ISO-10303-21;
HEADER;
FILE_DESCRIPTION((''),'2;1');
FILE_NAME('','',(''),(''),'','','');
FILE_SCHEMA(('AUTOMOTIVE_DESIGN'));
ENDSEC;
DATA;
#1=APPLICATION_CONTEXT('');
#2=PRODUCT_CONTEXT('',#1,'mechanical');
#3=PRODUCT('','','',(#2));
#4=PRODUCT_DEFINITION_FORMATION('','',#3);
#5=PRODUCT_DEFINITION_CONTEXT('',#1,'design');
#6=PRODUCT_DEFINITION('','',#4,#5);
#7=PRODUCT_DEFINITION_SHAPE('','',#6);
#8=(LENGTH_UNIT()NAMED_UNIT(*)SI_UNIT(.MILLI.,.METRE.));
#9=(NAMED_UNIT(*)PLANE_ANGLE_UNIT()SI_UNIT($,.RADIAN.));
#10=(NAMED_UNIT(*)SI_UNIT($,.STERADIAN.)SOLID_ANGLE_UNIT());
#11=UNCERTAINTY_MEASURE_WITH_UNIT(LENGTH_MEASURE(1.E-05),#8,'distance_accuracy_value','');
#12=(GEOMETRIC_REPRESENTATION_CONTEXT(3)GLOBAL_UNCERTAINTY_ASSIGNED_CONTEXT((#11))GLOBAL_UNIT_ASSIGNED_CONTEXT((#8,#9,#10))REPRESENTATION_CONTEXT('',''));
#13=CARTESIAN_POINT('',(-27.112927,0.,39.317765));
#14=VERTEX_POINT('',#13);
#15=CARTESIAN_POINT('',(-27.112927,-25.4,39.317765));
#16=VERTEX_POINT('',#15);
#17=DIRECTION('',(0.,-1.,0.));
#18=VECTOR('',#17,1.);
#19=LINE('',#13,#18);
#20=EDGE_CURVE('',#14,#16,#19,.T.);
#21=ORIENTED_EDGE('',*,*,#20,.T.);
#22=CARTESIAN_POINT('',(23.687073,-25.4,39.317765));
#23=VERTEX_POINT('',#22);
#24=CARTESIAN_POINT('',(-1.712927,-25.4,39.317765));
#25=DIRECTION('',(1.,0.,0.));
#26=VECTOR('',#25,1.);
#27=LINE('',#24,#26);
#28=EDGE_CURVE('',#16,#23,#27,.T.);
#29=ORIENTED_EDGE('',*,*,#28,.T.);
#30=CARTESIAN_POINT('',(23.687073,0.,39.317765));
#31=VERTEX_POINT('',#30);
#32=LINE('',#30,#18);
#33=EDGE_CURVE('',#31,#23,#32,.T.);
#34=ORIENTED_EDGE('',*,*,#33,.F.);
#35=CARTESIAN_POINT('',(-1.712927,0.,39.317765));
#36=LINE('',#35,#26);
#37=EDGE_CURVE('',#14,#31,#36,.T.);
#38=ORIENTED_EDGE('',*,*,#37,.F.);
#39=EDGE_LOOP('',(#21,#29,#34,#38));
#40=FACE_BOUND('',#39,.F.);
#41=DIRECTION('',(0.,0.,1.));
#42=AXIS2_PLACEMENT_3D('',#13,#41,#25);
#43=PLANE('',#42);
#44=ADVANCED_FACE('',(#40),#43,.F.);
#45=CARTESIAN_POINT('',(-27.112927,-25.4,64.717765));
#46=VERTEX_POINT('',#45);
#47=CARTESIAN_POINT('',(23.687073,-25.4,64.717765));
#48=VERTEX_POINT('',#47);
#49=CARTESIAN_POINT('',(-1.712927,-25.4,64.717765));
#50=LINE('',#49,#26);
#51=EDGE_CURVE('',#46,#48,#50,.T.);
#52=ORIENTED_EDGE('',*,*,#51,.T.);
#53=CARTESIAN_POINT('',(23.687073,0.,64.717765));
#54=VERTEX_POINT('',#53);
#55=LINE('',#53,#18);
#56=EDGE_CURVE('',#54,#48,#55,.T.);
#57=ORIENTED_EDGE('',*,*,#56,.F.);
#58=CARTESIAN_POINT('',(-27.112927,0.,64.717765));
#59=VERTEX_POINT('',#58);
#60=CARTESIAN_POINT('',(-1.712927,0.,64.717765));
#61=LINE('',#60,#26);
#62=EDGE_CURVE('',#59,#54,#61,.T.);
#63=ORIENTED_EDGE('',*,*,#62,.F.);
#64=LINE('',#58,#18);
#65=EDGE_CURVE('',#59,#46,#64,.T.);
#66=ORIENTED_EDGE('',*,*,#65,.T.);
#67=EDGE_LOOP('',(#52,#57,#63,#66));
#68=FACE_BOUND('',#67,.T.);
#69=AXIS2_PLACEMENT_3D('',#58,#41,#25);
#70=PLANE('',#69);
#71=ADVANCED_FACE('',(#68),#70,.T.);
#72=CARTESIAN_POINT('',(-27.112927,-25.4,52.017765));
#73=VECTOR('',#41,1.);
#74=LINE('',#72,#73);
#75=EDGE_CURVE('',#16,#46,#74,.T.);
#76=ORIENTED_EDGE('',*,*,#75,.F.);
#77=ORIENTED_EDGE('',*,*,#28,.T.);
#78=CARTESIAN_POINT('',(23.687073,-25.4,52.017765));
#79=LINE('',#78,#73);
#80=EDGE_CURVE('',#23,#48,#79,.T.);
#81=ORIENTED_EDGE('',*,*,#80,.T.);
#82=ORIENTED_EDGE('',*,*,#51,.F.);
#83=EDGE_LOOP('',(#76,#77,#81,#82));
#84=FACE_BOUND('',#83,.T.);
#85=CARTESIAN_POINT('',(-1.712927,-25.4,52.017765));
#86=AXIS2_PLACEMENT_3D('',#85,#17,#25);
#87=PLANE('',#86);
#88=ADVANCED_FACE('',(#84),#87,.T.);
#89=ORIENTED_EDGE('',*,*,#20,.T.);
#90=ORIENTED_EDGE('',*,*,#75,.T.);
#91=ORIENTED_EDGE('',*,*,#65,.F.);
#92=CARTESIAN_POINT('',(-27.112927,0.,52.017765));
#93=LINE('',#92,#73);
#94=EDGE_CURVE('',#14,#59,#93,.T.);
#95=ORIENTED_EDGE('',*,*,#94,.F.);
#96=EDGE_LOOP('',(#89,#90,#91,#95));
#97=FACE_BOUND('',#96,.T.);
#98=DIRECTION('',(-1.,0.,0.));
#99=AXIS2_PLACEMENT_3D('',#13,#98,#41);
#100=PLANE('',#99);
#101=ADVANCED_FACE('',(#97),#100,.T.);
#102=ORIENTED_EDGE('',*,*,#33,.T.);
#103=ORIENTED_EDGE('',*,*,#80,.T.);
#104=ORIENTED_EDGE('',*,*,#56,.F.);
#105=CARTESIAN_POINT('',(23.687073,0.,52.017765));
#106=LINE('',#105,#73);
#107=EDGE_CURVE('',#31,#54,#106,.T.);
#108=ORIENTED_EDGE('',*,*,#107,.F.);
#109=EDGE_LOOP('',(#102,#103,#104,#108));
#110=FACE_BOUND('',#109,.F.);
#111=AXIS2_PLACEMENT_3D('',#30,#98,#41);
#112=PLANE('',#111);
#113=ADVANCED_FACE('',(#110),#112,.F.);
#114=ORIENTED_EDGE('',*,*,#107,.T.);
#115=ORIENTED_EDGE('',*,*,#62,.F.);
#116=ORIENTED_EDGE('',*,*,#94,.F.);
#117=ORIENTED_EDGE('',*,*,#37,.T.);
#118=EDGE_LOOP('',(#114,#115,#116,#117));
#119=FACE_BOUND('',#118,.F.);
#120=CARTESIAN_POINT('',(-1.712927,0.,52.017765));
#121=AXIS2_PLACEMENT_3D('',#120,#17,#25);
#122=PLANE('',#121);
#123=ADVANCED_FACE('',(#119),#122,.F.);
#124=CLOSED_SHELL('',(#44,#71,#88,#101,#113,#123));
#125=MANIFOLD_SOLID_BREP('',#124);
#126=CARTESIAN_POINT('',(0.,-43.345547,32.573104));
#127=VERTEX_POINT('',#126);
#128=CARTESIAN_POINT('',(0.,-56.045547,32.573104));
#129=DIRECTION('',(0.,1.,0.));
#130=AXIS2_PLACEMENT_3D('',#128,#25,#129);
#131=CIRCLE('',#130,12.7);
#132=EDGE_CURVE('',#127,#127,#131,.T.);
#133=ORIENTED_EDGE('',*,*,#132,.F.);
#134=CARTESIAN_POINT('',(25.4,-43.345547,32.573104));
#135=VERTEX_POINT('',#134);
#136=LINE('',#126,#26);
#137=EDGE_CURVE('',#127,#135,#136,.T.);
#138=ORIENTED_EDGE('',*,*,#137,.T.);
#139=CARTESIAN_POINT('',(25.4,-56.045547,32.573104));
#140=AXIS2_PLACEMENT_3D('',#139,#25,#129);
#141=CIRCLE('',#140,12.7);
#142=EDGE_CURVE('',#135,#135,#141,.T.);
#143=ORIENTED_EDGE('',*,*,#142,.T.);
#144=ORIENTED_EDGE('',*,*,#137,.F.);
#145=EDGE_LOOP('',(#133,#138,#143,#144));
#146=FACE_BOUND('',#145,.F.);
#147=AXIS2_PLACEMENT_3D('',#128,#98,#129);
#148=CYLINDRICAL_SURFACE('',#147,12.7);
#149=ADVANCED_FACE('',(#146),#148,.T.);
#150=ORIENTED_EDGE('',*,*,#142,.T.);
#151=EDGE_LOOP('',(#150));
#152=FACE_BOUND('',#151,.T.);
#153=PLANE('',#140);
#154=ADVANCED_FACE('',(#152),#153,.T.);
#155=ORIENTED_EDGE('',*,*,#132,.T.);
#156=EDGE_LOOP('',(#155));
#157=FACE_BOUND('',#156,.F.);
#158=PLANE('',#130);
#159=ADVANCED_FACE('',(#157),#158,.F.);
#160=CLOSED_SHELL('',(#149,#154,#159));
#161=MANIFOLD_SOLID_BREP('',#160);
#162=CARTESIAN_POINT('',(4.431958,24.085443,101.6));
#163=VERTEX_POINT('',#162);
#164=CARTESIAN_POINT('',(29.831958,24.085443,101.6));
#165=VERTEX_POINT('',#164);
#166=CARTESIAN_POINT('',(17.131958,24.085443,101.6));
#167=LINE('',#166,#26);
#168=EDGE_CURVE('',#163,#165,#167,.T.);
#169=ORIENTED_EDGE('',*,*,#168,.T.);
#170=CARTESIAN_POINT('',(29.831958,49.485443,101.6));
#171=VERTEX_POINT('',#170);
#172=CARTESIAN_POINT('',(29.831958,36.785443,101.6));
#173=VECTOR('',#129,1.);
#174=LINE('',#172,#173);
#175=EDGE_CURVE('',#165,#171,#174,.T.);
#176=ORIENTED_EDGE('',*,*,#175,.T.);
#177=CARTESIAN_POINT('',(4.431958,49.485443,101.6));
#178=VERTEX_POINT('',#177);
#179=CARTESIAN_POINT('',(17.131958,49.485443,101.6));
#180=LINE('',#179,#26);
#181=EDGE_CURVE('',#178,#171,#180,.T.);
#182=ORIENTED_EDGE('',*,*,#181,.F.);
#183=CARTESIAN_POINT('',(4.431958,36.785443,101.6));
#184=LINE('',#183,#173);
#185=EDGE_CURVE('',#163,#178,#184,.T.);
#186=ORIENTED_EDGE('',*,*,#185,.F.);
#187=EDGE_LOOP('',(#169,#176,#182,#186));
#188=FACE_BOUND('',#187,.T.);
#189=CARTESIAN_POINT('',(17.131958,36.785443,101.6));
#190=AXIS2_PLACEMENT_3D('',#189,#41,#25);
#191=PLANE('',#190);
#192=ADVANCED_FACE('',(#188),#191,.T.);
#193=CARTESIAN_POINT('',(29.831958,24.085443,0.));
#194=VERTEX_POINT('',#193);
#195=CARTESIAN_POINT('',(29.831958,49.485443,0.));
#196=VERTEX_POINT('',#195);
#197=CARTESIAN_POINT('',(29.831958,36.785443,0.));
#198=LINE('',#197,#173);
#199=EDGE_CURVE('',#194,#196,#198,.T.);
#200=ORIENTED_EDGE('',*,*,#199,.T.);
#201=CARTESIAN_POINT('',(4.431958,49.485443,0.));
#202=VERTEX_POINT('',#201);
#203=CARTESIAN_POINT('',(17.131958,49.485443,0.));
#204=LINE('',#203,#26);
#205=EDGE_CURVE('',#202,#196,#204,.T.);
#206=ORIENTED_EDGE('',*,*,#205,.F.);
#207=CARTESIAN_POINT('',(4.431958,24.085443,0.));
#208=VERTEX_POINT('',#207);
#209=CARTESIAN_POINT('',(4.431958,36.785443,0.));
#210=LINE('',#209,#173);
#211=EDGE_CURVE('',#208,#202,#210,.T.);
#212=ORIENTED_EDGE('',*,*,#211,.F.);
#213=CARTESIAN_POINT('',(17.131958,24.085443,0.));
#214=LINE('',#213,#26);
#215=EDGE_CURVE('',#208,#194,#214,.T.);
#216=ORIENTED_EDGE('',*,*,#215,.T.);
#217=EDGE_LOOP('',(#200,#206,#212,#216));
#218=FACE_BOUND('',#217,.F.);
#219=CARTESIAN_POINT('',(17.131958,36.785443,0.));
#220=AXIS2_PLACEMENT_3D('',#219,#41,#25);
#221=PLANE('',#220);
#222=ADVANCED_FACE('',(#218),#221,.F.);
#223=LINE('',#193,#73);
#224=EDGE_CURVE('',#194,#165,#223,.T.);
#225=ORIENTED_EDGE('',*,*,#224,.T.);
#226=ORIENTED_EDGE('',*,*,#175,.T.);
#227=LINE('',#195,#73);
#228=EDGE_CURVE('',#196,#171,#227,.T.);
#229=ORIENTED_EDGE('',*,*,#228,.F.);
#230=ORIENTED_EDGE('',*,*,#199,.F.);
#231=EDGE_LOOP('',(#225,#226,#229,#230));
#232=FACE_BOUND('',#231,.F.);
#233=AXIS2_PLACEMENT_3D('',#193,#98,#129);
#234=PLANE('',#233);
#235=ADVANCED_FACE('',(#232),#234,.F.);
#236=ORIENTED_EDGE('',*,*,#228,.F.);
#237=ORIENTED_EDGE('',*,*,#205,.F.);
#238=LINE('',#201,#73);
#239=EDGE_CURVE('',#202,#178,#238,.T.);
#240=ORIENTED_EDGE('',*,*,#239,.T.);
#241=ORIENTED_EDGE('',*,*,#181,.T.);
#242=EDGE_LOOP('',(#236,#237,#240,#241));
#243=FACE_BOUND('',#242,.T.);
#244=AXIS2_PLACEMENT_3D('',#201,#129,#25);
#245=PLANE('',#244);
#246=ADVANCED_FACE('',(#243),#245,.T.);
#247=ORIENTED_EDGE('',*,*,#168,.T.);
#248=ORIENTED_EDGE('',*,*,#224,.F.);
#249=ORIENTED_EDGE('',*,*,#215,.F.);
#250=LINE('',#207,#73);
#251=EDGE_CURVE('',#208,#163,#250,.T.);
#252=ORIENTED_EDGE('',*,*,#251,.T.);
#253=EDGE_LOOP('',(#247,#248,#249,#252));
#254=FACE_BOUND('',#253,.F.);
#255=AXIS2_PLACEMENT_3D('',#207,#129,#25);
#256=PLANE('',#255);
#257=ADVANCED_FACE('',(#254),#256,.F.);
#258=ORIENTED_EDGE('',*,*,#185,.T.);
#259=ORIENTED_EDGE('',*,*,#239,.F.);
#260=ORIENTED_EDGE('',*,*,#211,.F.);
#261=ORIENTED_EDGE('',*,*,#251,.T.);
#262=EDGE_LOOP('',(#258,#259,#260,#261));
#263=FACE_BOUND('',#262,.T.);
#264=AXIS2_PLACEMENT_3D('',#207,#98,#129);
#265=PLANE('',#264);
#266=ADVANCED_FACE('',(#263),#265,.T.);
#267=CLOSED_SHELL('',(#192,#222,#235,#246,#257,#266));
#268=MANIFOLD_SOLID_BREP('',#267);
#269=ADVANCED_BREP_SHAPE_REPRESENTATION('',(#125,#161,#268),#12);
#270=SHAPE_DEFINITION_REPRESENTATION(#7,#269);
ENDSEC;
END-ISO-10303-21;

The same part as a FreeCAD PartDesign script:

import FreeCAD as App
import Part
import Sketcher
Q = App.Units.Quantity


def add_polygon(sketch, points):
    """Adds a closed chain of lines whose ends are joined by coincident constraints."""
    first, n = sketch.GeometryCount, len(points)
    for a, b in zip(points, points[1:] + points[:1]):
        sketch.addGeometry(Part.LineSegment(App.Vector(*a, 0), App.Vector(*b, 0)), False)
    for i in range(n):
        sketch.addConstraint(Sketcher.Constraint("Coincident", first + i, 2, first + (i + 1) % n, 1))

doc = App.newDocument("Part")
body = doc.addObject("PartDesign::Body", "Body")

# Sketch on XZ plane
sketch1 = doc.addObject("Sketcher::SketchObject", "Sketch")
body.addObject(sketch1)
sketch1.AttachmentSupport = (doc.XZ_Plane, [""])
sketch1.MapMode = "FlatFace"
add_polygon(sketch1, [(-27.112927, 64.717765), (-27.112927, 39.317765), (23.687073, 39.317765), (23.687073, 64.717765)])  # lines 0-3
sketch1.addConstraint([
    Sketcher.Constraint("Vertical", 0),
    Sketcher.Constraint("Horizontal", 1),
    Sketcher.Constraint("Vertical", 2),
    Sketcher.Constraint("Horizontal", 3),
    Sketcher.Constraint("DistanceX", 1, 1, 1, 2, Q("2 in")),
    Sketcher.Constraint("DistanceY", 0, 2, 0, 1, Q("1 in")),
    Sketcher.Constraint("DistanceX", 0, 2, -1, 1, 27.112927),
    Sketcher.Constraint("DistanceY", -1, 1, 0, 2, 39.317765),
])
pad1 = doc.addObject("PartDesign::Pad", "Pad")
body.addObject(pad1)
pad1.Profile = sketch1
pad1.Length = Q("1 in")
body2 = doc.addObject("PartDesign::Body", "Body001")

# Sketch on XY plane
sketch2 = doc.addObject("Sketcher::SketchObject", "Sketch001")
body2.addObject(sketch2)
sketch2.AttachmentSupport = (doc.getObject("XY_Plane001"), [""])
sketch2.MapMode = "FlatFace"
add_polygon(sketch2, [(4.431958, 49.485443), (4.431958, 24.085443), (29.831958, 24.085443), (29.831958, 49.485443)])  # lines 0-3
sketch2.addConstraint([
    Sketcher.Constraint("Vertical", 0),
    Sketcher.Constraint("Horizontal", 1),
    Sketcher.Constraint("Vertical", 2),
    Sketcher.Constraint("Horizontal", 3),
    Sketcher.Constraint("Equal", 3, 0),
    Sketcher.Constraint("DistanceX", 1, 1, 1, 2, Q("1 in")),
    Sketcher.Constraint("DistanceX", -1, 1, 1, 2, 29.831958),
    Sketcher.Constraint("DistanceY", -1, 1, 0, 2, 24.085443),
])
pad2 = doc.addObject("PartDesign::Pad", "Pad001")
body2.addObject(pad2)
pad2.Profile = sketch2
pad2.Length = Q("4 in")
body3 = doc.addObject("PartDesign::Body", "Body002")

# Sketch on YZ plane
sketch3 = doc.addObject("Sketcher::SketchObject", "Sketch002")
body3.addObject(sketch3)
sketch3.AttachmentSupport = (doc.getObject("YZ_Plane002"), [""])
sketch3.MapMode = "FlatFace"
sketch3.addGeometry(Part.Circle(App.Vector(-56.045547, 32.573104, 0), App.Vector(0, 0, 1), 12.7), False)
sketch3.addConstraint([
    Sketcher.Constraint("Diameter", 0, Q("1 in")),
    Sketcher.Constraint("DistanceX", 0, 3, -1, 1, 56.045547),
    Sketcher.Constraint("DistanceY", -1, 1, 0, 3, 32.573104),
])
pad3 = doc.addObject("PartDesign::Pad", "Pad002")
body3.addObject(pad3)
pad3.Profile = sketch3
pad3.Length = Q("1 in")

# Sketch on YZ plane
sketch4 = doc.addObject("Sketcher::SketchObject", "Sketch003")
body3.addObject(sketch4)
sketch4.AttachmentSupport = (doc.getObject("YZ_Plane002"), [""])
sketch4.MapMode = "FlatFace"
sketch4.addGeometry(Part.Circle(App.Vector(-56.045547, 32.573104, 0), App.Vector(0, 0, 1), 12.7), False)
sketch4.addConstraint([
    Sketcher.Constraint("Diameter", 0, Q("1 in")),
    Sketcher.Constraint("DistanceX", 0, 3, -1, 1, 56.045547),
    Sketcher.Constraint("DistanceY", -1, 1, 0, 3, 32.573104),
])
pad4 = doc.addObject("PartDesign::Pad", "Pad003")
body3.addObject(pad4)
pad4.Profile = sketch4
pad4.Length = Q("1 in")

doc.recompute()
